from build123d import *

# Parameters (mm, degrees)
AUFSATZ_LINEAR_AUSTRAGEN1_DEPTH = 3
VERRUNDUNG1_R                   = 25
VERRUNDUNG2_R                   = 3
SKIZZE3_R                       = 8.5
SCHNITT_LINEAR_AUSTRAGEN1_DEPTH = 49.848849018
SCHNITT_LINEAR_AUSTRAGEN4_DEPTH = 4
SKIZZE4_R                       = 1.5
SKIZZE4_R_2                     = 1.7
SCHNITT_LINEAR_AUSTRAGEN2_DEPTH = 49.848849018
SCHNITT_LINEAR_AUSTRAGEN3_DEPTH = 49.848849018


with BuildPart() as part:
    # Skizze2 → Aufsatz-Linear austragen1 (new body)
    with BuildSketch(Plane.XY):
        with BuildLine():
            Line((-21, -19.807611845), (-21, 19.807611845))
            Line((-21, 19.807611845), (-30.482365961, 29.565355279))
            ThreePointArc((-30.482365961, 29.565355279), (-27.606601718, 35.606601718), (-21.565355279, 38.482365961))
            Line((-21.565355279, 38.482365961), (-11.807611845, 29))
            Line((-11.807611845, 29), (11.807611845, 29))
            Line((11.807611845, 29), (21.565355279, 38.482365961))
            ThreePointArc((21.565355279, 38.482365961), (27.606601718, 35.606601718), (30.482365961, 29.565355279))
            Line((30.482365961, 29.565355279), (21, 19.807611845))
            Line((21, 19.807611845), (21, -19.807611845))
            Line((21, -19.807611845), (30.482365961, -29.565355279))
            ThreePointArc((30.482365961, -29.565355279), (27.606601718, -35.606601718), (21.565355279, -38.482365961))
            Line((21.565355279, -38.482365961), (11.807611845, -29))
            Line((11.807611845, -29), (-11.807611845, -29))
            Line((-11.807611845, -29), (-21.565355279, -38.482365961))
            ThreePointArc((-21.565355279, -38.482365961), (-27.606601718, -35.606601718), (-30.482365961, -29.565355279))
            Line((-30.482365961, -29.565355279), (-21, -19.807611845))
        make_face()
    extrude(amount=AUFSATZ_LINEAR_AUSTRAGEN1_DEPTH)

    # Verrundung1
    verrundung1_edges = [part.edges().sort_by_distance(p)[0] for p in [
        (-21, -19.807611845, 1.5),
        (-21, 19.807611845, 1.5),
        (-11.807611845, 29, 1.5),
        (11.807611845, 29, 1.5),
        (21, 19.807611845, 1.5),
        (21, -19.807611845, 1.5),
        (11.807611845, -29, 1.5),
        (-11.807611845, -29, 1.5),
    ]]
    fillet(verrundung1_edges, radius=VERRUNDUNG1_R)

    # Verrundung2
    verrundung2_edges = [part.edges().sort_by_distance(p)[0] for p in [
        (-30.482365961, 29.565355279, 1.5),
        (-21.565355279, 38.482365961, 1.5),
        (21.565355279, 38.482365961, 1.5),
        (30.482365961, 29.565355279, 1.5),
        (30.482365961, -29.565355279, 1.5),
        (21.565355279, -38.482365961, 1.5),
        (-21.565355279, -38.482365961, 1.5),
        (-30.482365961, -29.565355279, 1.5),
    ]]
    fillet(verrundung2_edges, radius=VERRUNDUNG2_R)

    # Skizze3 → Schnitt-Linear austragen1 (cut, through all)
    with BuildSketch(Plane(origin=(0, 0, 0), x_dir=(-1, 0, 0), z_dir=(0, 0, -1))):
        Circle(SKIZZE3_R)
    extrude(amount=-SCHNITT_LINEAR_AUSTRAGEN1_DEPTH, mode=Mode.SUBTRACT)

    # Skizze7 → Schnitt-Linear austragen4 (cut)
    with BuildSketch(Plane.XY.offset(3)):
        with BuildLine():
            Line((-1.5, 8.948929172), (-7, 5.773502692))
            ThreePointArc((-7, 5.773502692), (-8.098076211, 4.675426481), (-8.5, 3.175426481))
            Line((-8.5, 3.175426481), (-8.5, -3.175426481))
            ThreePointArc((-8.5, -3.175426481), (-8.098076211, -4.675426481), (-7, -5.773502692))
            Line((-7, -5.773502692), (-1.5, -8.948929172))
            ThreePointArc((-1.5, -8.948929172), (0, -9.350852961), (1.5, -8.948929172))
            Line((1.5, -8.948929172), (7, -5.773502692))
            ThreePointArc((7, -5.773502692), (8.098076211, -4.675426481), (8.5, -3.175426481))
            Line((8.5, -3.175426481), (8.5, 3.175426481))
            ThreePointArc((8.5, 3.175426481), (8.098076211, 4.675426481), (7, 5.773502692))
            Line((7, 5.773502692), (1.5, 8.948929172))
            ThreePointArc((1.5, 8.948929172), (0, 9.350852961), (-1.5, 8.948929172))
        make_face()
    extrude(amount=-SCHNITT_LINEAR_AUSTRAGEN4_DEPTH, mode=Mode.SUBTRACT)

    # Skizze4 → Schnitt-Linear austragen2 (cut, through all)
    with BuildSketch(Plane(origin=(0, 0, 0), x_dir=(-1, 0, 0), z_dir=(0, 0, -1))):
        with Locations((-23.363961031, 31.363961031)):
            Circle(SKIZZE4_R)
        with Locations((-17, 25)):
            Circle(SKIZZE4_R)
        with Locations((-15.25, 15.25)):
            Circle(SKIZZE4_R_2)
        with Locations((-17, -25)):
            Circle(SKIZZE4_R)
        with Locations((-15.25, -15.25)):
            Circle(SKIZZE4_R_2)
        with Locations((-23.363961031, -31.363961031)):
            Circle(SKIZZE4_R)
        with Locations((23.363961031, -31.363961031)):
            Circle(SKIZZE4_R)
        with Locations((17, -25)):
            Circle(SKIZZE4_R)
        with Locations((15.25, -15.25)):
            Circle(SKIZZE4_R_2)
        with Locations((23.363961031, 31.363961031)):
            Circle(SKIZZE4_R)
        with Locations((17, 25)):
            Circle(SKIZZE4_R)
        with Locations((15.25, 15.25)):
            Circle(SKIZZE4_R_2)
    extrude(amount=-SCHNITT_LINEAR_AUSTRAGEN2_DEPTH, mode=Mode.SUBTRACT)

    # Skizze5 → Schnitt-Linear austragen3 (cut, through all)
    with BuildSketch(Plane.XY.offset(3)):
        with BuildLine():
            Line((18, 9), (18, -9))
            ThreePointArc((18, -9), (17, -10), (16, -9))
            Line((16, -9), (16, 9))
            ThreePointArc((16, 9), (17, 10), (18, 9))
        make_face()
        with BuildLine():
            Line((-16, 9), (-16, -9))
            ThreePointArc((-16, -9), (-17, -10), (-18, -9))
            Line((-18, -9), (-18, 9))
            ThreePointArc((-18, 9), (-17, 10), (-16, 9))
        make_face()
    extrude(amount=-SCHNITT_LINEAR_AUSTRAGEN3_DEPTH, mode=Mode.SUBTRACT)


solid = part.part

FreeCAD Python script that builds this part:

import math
import FreeCAD as App
import Part
import Sketcher
Q = App.Units.Quantity


def edges_at(feature, points):
    """Names of the edges that pass closest to the given points."""
    edges = feature.Shape.Edges
    near = lambda p: min(range(len(edges)), key=lambda i: edges[i].distToShape(Part.Vertex(*p))[0])
    return sorted({f"Edge{near(p) + 1}" for p in points})

doc = App.newDocument("Part")
body = doc.addObject("PartDesign::Body", "Body")

# Sketch on XY plane
sketch1 = doc.addObject("Sketcher::SketchObject", "Sketch")
body.addObject(sketch1)
sketch1.AttachmentSupport = (doc.XY_Plane, [""])
sketch1.MapMode = "FlatFace"
sketch1.addGeometry(Part.LineSegment(App.Vector(-21, 20, 0), App.Vector(-21, -20, 0)), False)
sketch1.addGeometry(Part.LineSegment(App.Vector(-21, -20, 0), App.Vector(-30, -30, 0)), False)
sketch1.addGeometry(Part.ArcOfCircle(Part.Circle(App.Vector(-21, -29, 0), App.Vector(0, 0, 1), 10), math.radians(-174), math.radians(-96)), False)
sketch1.addGeometry(Part.LineSegment(App.Vector(-22, -38, 0), App.Vector(-12, -29, 0)), False)
sketch1.addGeometry(Part.LineSegment(App.Vector(-12, -29, 0), App.Vector(12, -29, 0)), False)
sketch1.addGeometry(Part.LineSegment(App.Vector(12, -29, 0), App.Vector(22, -38, 0)), False)
sketch1.addGeometry(Part.ArcOfCircle(Part.Circle(App.Vector(21, -29, 0), App.Vector(0, 0, 1), 10), math.radians(-84), math.radians(-6)), False)
sketch1.addGeometry(Part.LineSegment(App.Vector(30, -30, 0), App.Vector(21, -20, 0)), False)
sketch1.addGeometry(Part.LineSegment(App.Vector(21, -20, 0), App.Vector(21, 20, 0)), False)
sketch1.addGeometry(Part.LineSegment(App.Vector(21, 20, 0), App.Vector(30, 30, 0)), False)
sketch1.addGeometry(Part.ArcOfCircle(Part.Circle(App.Vector(21, 29, 0), App.Vector(0, 0, 1), 10), math.radians(6), math.radians(84)), False)
sketch1.addGeometry(Part.LineSegment(App.Vector(22, 38, 0), App.Vector(12, 29, 0)), False)
sketch1.addGeometry(Part.LineSegment(App.Vector(12, 29, 0), App.Vector(-12, 29, 0)), False)
sketch1.addGeometry(Part.LineSegment(App.Vector(-12, 29, 0), App.Vector(-22, 38, 0)), False)
sketch1.addGeometry(Part.ArcOfCircle(Part.Circle(App.Vector(-21, 29, 0), App.Vector(0, 0, 1), 10), math.radians(96), math.radians(174)), False)
sketch1.addGeometry(Part.LineSegment(App.Vector(-30, 30, 0), App.Vector(-21, 20, 0)), False)
sketch1.addConstraint(Sketcher.Constraint("Coincident", 0, 2, 1, 1))
sketch1.addConstraint(Sketcher.Constraint("Coincident", 1, 2, 2, 1))
sketch1.addConstraint(Sketcher.Constraint("Coincident", 2, 2, 3, 1))
sketch1.addConstraint(Sketcher.Constraint("Coincident", 3, 2, 4, 1))
sketch1.addConstraint(Sketcher.Constraint("Coincident", 4, 2, 5, 1))
sketch1.addConstraint(Sketcher.Constraint("Coincident", 5, 2, 6, 1))
sketch1.addConstraint(Sketcher.Constraint("Coincident", 6, 2, 7, 1))
sketch1.addConstraint(Sketcher.Constraint("Coincident", 7, 2, 8, 1))
sketch1.addConstraint(Sketcher.Constraint("Coincident", 8, 2, 9, 1))
sketch1.addConstraint(Sketcher.Constraint("Coincident", 9, 2, 10, 1))
sketch1.addConstraint(Sketcher.Constraint("Coincident", 10, 2, 11, 1))
sketch1.addConstraint(Sketcher.Constraint("Coincident", 11, 2, 12, 1))
sketch1.addConstraint(Sketcher.Constraint("Coincident", 12, 2, 13, 1))
sketch1.addConstraint(Sketcher.Constraint("Coincident", 13, 2, 14, 1))
sketch1.addConstraint(Sketcher.Constraint("Coincident", 14, 2, 15, 1))
sketch1.addConstraint(Sketcher.Constraint("Coincident", 15, 2, 0, 1))
sketch1.addConstraint(Sketcher.Constraint("Vertical", 0))
sketch1.addConstraint(Sketcher.Constraint("Horizontal", 4))
sketch1.addConstraint(Sketcher.Constraint("Vertical", 8))
sketch1.addConstraint(Sketcher.Constraint("Horizontal", 12))
sketch1.addConstraint(Sketcher.Constraint("Equal", 2, 6))
sketch1.addConstraint(Sketcher.Constraint("Equal", 6, 10))
sketch1.addConstraint(Sketcher.Constraint("Equal", 10, 14))
sketch1.addConstraint(Sketcher.Constraint("Symmetric", 2, 3, 10, 3, -1, 1))
sketch1.addConstraint(Sketcher.Constraint("Symmetric", 6, 3, 14, 3, -1, 1))
sketch1.addConstraint(Sketcher.Constraint("Symmetric", 0, 2, 8, 2, -1, 1))
sketch1.addConstraint(Sketcher.Constraint("Symmetric", 3, 2, 11, 2, -1, 1))
sketch1.addConstraint(Sketcher.Constraint("Symmetric", 2, 3, 6, 3, -2))
sketch1.addConstraint(Sketcher.Constraint("Perpendicular", 1, 5))
sketch1.addConstraint(Sketcher.Constraint("Perpendicular", 3, 7))
sketch1.addConstraint(Sketcher.Constraint("Perpendicular", 5, 9))
sketch1.addConstraint(Sketcher.Constraint("Perpendicular", 7, 11))
sketch1.addConstraint(Sketcher.Constraint("Perpendicular", 9, 13))
sketch1.addConstraint(Sketcher.Constraint("Perpendicular", 11, 15))
sketch1.addConstraint(Sketcher.Constraint("Horizontal", 2, 2, 5, 2))
sketch1.addConstraint(Sketcher.Constraint("Horizontal", 1, 2, 6, 2))
sketch1.addConstraint(Sketcher.Constraint("Horizontal", 0, 2, 7, 2))
sketch1.addConstraint(Sketcher.Constraint("Horizontal", 10, 2, 13, 2))
sketch1.addConstraint(Sketcher.Constraint("Horizontal", 9, 2, 14, 2))
sketch1.addConstraint(Sketcher.Constraint("Equal", 1, 3))
sketch1.addConstraint(Sketcher.Constraint("Radius", 2, Q("10 mm")))
sketch1.addConstraint(Sketcher.Constraint("DistanceX", 0, 2, -1, 1, Q("21 mm")))
sketch1.addConstraint(Sketcher.Constraint("DistanceY", 3, 2, -1, 1, Q("29 mm")))
sketch1.addConstraint(Sketcher.Constraint("Angle", 1, Q("-134.18 deg")))
sketch1.addConstraint(Sketcher.Constraint("DistanceX", 1, 2, 6, 3, Q("51.0179 mm")))
sketch1.addConstraint(Sketcher.Constraint("DistanceY", 2, 2, 14, 3, Q("67.0179 mm")))
sketch1.addConstraint(Sketcher.Constraint("DistanceX", 4, 1, 4, 2, Q("23.615224 mm")))
pad1 = doc.addObject("PartDesign::Pad", "Pad")
body.addObject(pad1)
pad1.Profile = sketch1
pad1.Length = 3
doc.recompute()

fillet = doc.addObject("PartDesign::Fillet", "Fillet")
body.addObject(fillet)
fillet.Base = (pad1, edges_at(pad1, [
    (-21, -19.808, 1.5),
    (-21, 19.808, 1.5),
    (-11.808, 29, 1.5),
    (11.808, 29, 1.5),
    (21, 19.808, 1.5),
    (21, -19.808, 1.5),
    (11.808, -29, 1.5),
    (-11.808, -29, 1.5),
]))
fillet.Radius = 25
doc.recompute()

fillet2 = doc.addObject("PartDesign::Fillet", "Fillet001")
body.addObject(fillet2)
fillet2.Base = (fillet, edges_at(fillet, [
    (-30.482, 29.565, 1.5),
    (-21.565, 38.482, 1.5),
    (21.565, 38.482, 1.5),
    (30.482, 29.565, 1.5),
    (30.482, -29.565, 1.5),
    (21.565, -38.482, 1.5),
    (-21.565, -38.482, 1.5),
    (-30.482, -29.565, 1.5),
]))
fillet2.Radius = 3

# Sketch on XY plane
sketch2 = doc.addObject("Sketcher::SketchObject", "Sketch001")
body.addObject(sketch2)
sketch2.AttachmentSupport = (doc.XY_Plane, [""])
sketch2.MapMode = "FlatFace"
sketch2.addGeometry(Part.Circle(App.Vector(0, 0, 0), App.Vector(0, 0, 1), 8), False)
sketch2.addConstraint(Sketcher.Constraint("Coincident", 0, 3, -1, 1))
sketch2.addConstraint(Sketcher.Constraint("Diameter", 0, Q("17 mm")))
pocket1 = doc.addObject("PartDesign::Pocket", "Pocket")
body.addObject(pocket1)
pocket1.Profile = sketch2
pocket1.Type = "ThroughAll"
pocket1.Reversed = True

# Sketch on XY plane
sketch3 = doc.addObject("Sketcher::SketchObject", "Sketch002")
body.addObject(sketch3)
sketch3.AttachmentSupport = (doc.XY_Plane, [""])
sketch3.MapMode = "FlatFace"
sketch3.AttachmentOffset = App.Placement(App.Vector(0, 0, 3), App.Rotation())
sketch3.addGeometry(Part.LineSegment(App.Vector(-1.5, 8.9, 0), App.Vector(-7, 5.8, 0)), False)
sketch3.addGeometry(Part.ArcOfCircle(Part.Circle(App.Vector(-5.5, 3.2, 0), App.Vector(0, 0, 1), 3), math.radians(120), math.radians(180)), False)
sketch3.addGeometry(Part.LineSegment(App.Vector(-8.5, 3.2, 0), App.Vector(-8.5, -3.2, 0)), False)
sketch3.addGeometry(Part.ArcOfCircle(Part.Circle(App.Vector(-5.5, -3.2, 0), App.Vector(0, 0, 1), 3), math.radians(-180), math.radians(-120)), False)
sketch3.addGeometry(Part.LineSegment(App.Vector(-7, -5.8, 0), App.Vector(-1.5, -8.9, 0)), False)
sketch3.addGeometry(Part.ArcOfCircle(Part.Circle(App.Vector(0, -6.4, 0), App.Vector(0, 0, 1), 3), math.radians(-120), math.radians(-60)), False)
sketch3.addGeometry(Part.LineSegment(App.Vector(1.5, -8.9, 0), App.Vector(7, -5.8, 0)), False)
sketch3.addGeometry(Part.ArcOfCircle(Part.Circle(App.Vector(5.5, -3.2, 0), App.Vector(0, 0, 1), 3), math.radians(-60), math.radians(0)), False)
sketch3.addGeometry(Part.LineSegment(App.Vector(8.5, -3.2, 0), App.Vector(8.5, 3.2, 0)), False)
sketch3.addGeometry(Part.ArcOfCircle(Part.Circle(App.Vector(5.5, 3.2, 0), App.Vector(0, 0, 1), 3), math.radians(0), math.radians(60)), False)
sketch3.addGeometry(Part.LineSegment(App.Vector(7, 5.8, 0), App.Vector(1.5, 8.9, 0)), False)
sketch3.addGeometry(Part.ArcOfCircle(Part.Circle(App.Vector(0, 6.4, 0), App.Vector(0, 0, 1), 3), math.radians(60), math.radians(120)), False)
sketch3.addConstraint(Sketcher.Constraint("Tangent", 0, 2, 1, 1))
sketch3.addConstraint(Sketcher.Constraint("Tangent", 1, 2, 2, 1))
sketch3.addConstraint(Sketcher.Constraint("Tangent", 2, 2, 3, 1))
sketch3.addConstraint(Sketcher.Constraint("Tangent", 3, 2, 4, 1))
sketch3.addConstraint(Sketcher.Constraint("Tangent", 4, 2, 5, 1))
sketch3.addConstraint(Sketcher.Constraint("Tangent", 5, 2, 6, 1))
sketch3.addConstraint(Sketcher.Constraint("Tangent", 6, 2, 7, 1))
sketch3.addConstraint(Sketcher.Constraint("Tangent", 7, 2, 8, 1))
sketch3.addConstraint(Sketcher.Constraint("Tangent", 8, 2, 9, 1))
sketch3.addConstraint(Sketcher.Constraint("Tangent", 9, 2, 10, 1))
sketch3.addConstraint(Sketcher.Constraint("Tangent", 10, 2, 11, 1))
sketch3.addConstraint(Sketcher.Constraint("Tangent", 11, 2, 0, 1))
sketch3.addConstraint(Sketcher.Constraint("Vertical", 2))
sketch3.addConstraint(Sketcher.Constraint("Vertical", 8))
sketch3.addConstraint(Sketcher.Constraint("Equal", 1, 3))
sketch3.addConstraint(Sketcher.Constraint("Equal", 3, 5))
sketch3.addConstraint(Sketcher.Constraint("Equal", 5, 7))
sketch3.addConstraint(Sketcher.Constraint("Equal", 7, 9))
sketch3.addConstraint(Sketcher.Constraint("Equal", 9, 11))
sketch3.addConstraint(Sketcher.Constraint("Symmetric", 1, 3, 7, 3, -1, 1))
sketch3.addConstraint(Sketcher.Constraint("Symmetric", 5, 3, 11, 3, -1, 1))
sketch3.addConstraint(Sketcher.Constraint("Symmetric", 4, 2, 5, 2, -2))
sketch3.addConstraint(Sketcher.Constraint("Parallel", 4, 10))
sketch3.addConstraint(Sketcher.Constraint("Radius", 1, Q("3 mm")))
sketch3.addConstraint(Sketcher.Constraint("Angle", 0, Q("-150 deg")))
sketch3.addConstraint(Sketcher.Constraint("DistanceX", 0, 2, -1, 1, Q("7 mm")))
sketch3.addConstraint(Sketcher.Constraint("DistanceY", 2, 2, 2, 1, Q("6.350853 mm")))
pocket2 = doc.addObject("PartDesign::Pocket", "Pocket001")
body.addObject(pocket2)
pocket2.Profile = sketch3
pocket2.Length = 4

# Sketch on XY plane
sketch4 = doc.addObject("Sketcher::SketchObject", "Sketch003")
body.addObject(sketch4)
sketch4.AttachmentSupport = (doc.XY_Plane, [""])
sketch4.MapMode = "FlatFace"
sketch4.addGeometry(Part.Circle(App.Vector(23.4, 31.4, 0), App.Vector(0, 0, 1), 1.5), False)
sketch4.addGeometry(Part.Circle(App.Vector(17, 25, 0), App.Vector(0, 0, 1), 1.5), False)
sketch4.addGeometry(Part.Circle(App.Vector(15.2, 15.2, 0), App.Vector(0, 0, 1), 1.7), False)
sketch4.addGeometry(Part.Circle(App.Vector(17, -25, 0), App.Vector(0, 0, 1), 1.5), False)
sketch4.addGeometry(Part.Circle(App.Vector(15.2, -15.2, 0), App.Vector(0, 0, 1), 1.7), False)
sketch4.addGeometry(Part.Circle(App.Vector(23.4, -31.4, 0), App.Vector(0, 0, 1), 1.5), False)
sketch4.addGeometry(Part.Circle(App.Vector(-23.4, -31.4, 0), App.Vector(0, 0, 1), 1.5), False)
sketch4.addGeometry(Part.Circle(App.Vector(-17, -25, 0), App.Vector(0, 0, 1), 1.5), False)
sketch4.addGeometry(Part.Circle(App.Vector(-15.2, -15.2, 0), App.Vector(0, 0, 1), 1.7), False)
sketch4.addGeometry(Part.Circle(App.Vector(-23.4, 31.4, 0), App.Vector(0, 0, 1), 1.5), False)
sketch4.addGeometry(Part.Circle(App.Vector(-17, 25, 0), App.Vector(0, 0, 1), 1.5), False)
sketch4.addGeometry(Part.Circle(App.Vector(-15.2, 15.2, 0), App.Vector(0, 0, 1), 1.7), False)
sketch4.addConstraint(Sketcher.Constraint("Equal", 0, 1))
sketch4.addConstraint(Sketcher.Constraint("Equal", 1, 3))
sketch4.addConstraint(Sketcher.Constraint("Equal", 2, 4))
sketch4.addConstraint(Sketcher.Constraint("Equal", 3, 5))
sketch4.addConstraint(Sketcher.Constraint("Equal", 5, 6))
sketch4.addConstraint(Sketcher.Constraint("Equal", 6, 7))
sketch4.addConstraint(Sketcher.Constraint("Equal", 4, 8))
sketch4.addConstraint(Sketcher.Constraint("Equal", 7, 9))
sketch4.addConstraint(Sketcher.Constraint("Equal", 9, 10))
sketch4.addConstraint(Sketcher.Constraint("Equal", 8, 11))
sketch4.addConstraint(Sketcher.Constraint("Symmetric", 0, 3, 6, 3, -1, 1))
sketch4.addConstraint(Sketcher.Constraint("Symmetric", 1, 3, 7, 3, -1, 1))
sketch4.addConstraint(Sketcher.Constraint("Symmetric", 2, 3, 8, 3, -1, 1))
sketch4.addConstraint(Sketcher.Constraint("Symmetric", 5, 3, 9, 3, -1, 1))
sketch4.addConstraint(Sketcher.Constraint("Symmetric", 3, 3, 10, 3, -1, 1))
sketch4.addConstraint(Sketcher.Constraint("Symmetric", 4, 3, 11, 3, -1, 1))
sketch4.addConstraint(Sketcher.Constraint("Symmetric", 5, 3, 6, 3, -2))
sketch4.addConstraint(Sketcher.Constraint("Symmetric", 3, 3, 7, 3, -2))
sketch4.addConstraint(Sketcher.Constraint("Symmetric", 4, 3, 8, 3, -2))
sketch4.addConstraint(Sketcher.Constraint("Diameter", 0, Q("3 mm")))
sketch4.addConstraint(Sketcher.Constraint("Diameter", 2, Q("3.4 mm")))
sketch4.addConstraint(Sketcher.Constraint("DistanceX", -1, 1, 1, 3, Q("17 mm")))
sketch4.addConstraint(Sketcher.Constraint("DistanceY", -1, 1, 1, 3, Q("25 mm")))
sketch4.addConstraint(Sketcher.Constraint("DistanceY", 4, 3, 2, 3, Q("30.5 mm")))
sketch4.addConstraint(Sketcher.Constraint("DistanceX", 8, 3, 4, 3, Q("30.5 mm")))
sketch4.addConstraint(Sketcher.Constraint("DistanceX", -1, 1, 0, 3, Q("23.363961 mm")))
sketch4.addConstraint(Sketcher.Constraint("DistanceY", -1, 1, 0, 3, Q("31.363961 mm")))
pocket3 = doc.addObject("PartDesign::Pocket", "Pocket002")
body.addObject(pocket3)
pocket3.Profile = sketch4
pocket3.Type = "ThroughAll"
pocket3.Reversed = True

# Sketch on XY plane
sketch5 = doc.addObject("Sketcher::SketchObject", "Sketch004")
body.addObject(sketch5)
sketch5.AttachmentSupport = (doc.XY_Plane, [""])
sketch5.MapMode = "FlatFace"
sketch5.AttachmentOffset = App.Placement(App.Vector(0, 0, 3), App.Rotation())
sketch5.addGeometry(Part.LineSegment(App.Vector(18, -9, 0), App.Vector(18, 9, 0)), False)
sketch5.addGeometry(Part.ArcOfCircle(Part.Circle(App.Vector(17, 9, 0), App.Vector(0, 0, 1), 1), math.radians(0), math.radians(180)), False)
sketch5.addGeometry(Part.LineSegment(App.Vector(16, 9, 0), App.Vector(16, -9, 0)), False)
sketch5.addGeometry(Part.ArcOfCircle(Part.Circle(App.Vector(17, -9, 0), App.Vector(0, 0, 1), 1), math.radians(180), math.radians(360)), False)
sketch5.addGeometry(Part.LineSegment(App.Vector(-16, -9, 0), App.Vector(-16, 9, 0)), False)
sketch5.addGeometry(Part.ArcOfCircle(Part.Circle(App.Vector(-17, 9, 0), App.Vector(0, 0, 1), 1), math.radians(0), math.radians(180)), False)
sketch5.addGeometry(Part.LineSegment(App.Vector(-18, 9, 0), App.Vector(-18, -9, 0)), False)
sketch5.addGeometry(Part.ArcOfCircle(Part.Circle(App.Vector(-17, -9, 0), App.Vector(0, 0, 1), 1), math.radians(180), math.radians(360)), False)
sketch5.addConstraint(Sketcher.Constraint("Tangent", 0, 2, 1, 1))
sketch5.addConstraint(Sketcher.Constraint("Tangent", 1, 2, 2, 1))
sketch5.addConstraint(Sketcher.Constraint("Tangent", 2, 2, 3, 1))
sketch5.addConstraint(Sketcher.Constraint("Tangent", 3, 2, 0, 1))
sketch5.addConstraint(Sketcher.Constraint("Tangent", 4, 2, 5, 1))
sketch5.addConstraint(Sketcher.Constraint("Tangent", 5, 2, 6, 1))
sketch5.addConstraint(Sketcher.Constraint("Tangent", 6, 2, 7, 1))
sketch5.addConstraint(Sketcher.Constraint("Tangent", 7, 2, 4, 1))
sketch5.addConstraint(Sketcher.Constraint("Vertical", 0))
sketch5.addConstraint(Sketcher.Constraint("Vertical", 2))
sketch5.addConstraint(Sketcher.Constraint("Vertical", 4))
sketch5.addConstraint(Sketcher.Constraint("Vertical", 6))
sketch5.addConstraint(Sketcher.Constraint("Equal", 3, 5))
sketch5.addConstraint(Sketcher.Constraint("Symmetric", 3, 3, 5, 3, -1, 1))
sketch5.addConstraint(Sketcher.Constraint("Horizontal", 1, 3, 5, 3))
sketch5.addConstraint(Sketcher.Constraint("Horizontal", 3, 3, 7, 3))
sketch5.addConstraint(Sketcher.Constraint("Radius", 1, Q("1 mm")))
sketch5.addConstraint(Sketcher.Constraint("DistanceY", 0, 1, 0, 2, Q("18 mm")))
sketch5.addConstraint(Sketcher.Constraint("DistanceX", -1, 1, 1, 3, Q("17 mm")))
pocket4 = doc.addObject("PartDesign::Pocket", "Pocket003")
body.addObject(pocket4)
pocket4.Profile = sketch5
pocket4.Type = "ThroughAll"

doc.recompute()
